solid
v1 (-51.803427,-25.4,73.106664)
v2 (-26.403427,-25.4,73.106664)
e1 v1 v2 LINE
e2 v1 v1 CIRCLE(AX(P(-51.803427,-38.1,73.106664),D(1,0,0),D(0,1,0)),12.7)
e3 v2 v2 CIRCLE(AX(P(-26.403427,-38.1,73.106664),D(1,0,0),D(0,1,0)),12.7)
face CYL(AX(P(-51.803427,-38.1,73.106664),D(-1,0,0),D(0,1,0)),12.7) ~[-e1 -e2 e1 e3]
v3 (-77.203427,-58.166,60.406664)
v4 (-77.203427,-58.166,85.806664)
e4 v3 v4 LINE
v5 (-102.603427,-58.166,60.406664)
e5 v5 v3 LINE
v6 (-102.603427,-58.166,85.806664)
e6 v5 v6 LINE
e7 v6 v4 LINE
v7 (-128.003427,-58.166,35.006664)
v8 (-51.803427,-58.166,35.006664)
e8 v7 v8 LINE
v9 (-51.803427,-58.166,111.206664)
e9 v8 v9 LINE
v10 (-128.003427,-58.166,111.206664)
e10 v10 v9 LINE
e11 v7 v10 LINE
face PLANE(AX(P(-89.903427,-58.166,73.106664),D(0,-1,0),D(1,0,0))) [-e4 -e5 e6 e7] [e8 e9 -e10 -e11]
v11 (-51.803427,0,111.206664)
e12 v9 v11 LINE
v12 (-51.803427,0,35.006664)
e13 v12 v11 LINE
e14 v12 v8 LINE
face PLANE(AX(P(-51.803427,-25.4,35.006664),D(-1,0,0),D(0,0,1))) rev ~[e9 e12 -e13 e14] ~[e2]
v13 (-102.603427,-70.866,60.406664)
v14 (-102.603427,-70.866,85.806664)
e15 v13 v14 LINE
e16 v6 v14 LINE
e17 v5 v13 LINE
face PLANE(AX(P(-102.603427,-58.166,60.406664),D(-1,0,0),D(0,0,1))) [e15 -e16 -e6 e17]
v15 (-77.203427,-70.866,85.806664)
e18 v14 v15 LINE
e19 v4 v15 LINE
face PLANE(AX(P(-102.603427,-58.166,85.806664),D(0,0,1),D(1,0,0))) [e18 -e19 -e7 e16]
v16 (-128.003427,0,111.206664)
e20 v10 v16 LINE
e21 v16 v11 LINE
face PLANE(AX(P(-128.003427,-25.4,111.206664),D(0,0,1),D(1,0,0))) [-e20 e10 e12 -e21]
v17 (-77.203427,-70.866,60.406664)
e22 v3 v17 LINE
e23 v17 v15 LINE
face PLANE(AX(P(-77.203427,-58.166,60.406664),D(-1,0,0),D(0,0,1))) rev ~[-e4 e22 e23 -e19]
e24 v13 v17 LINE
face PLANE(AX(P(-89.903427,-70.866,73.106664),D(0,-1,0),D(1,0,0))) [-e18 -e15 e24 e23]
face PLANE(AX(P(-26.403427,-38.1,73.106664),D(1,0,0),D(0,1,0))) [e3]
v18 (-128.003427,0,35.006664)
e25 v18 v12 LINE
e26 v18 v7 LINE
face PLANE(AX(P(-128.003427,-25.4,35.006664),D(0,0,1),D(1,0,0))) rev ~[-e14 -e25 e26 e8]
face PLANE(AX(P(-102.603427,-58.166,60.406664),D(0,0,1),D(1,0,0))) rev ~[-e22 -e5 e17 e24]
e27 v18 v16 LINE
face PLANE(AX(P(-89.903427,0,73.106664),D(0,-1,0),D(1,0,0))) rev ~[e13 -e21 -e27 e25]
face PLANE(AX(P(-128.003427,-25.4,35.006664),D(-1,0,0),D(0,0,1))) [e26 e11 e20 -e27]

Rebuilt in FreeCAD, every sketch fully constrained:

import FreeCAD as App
import Part
import Sketcher

V = App.Vector
Q = App.Units.Quantity

doc = App.newDocument("Part")
body = doc.addObject("PartDesign::Body", "Body")

sketch1 = body.newObject("Sketcher::SketchObject", "Sketch")
sketch1.AttachmentSupport = (doc.getObject("XZ_Plane"), [""])
sketch1.MapMode = "FlatFace"
sketch1.addGeometry([
    Part.LineSegment(V(-128, 111, 0), V(-128, 35, 0)),
    Part.LineSegment(V(-128, 35, 0), V(-52, 35, 0)),
    Part.LineSegment(V(-52, 35, 0), V(-52, 111, 0)),
    Part.LineSegment(V(-52, 111, 0), V(-128, 111, 0)),
], False)
sketch1.addConstraint([
    Sketcher.Constraint("Coincident", 0, 2, 1, 1),
    Sketcher.Constraint("Coincident", 1, 2, 2, 1),
    Sketcher.Constraint("Coincident", 2, 2, 3, 1),
    Sketcher.Constraint("Coincident", 3, 2, 0, 1),
    Sketcher.Constraint("Vertical", 0),
    Sketcher.Constraint("Horizontal", 1),
    Sketcher.Constraint("Vertical", 2),
    Sketcher.Constraint("Horizontal", 3),
    Sketcher.Constraint("Equal", 3, 0),
    Sketcher.Constraint("DistanceX", 1, 1, 1, 2, Q("3 in")),
    Sketcher.Constraint("DistanceX", 0, 2, -1, 1, 128.003427),
    Sketcher.Constraint("DistanceY", -1, 1, 0, 2, 35.006664),
])
pad1 = body.newObject("PartDesign::Pad", "Pad")
pad1.Profile = sketch1
pad1.Length = Q("1 in")

sketch2 = body.newObject("Sketcher::SketchObject", "Sketch001")
sketch2.AttachmentSupport = (doc.getObject("XZ_Plane"), [""])
sketch2.MapMode = "FlatFace"
sketch2.AttachmentOffset = App.Placement(V(0, 0, 1 * 25.4), App.Rotation())
sketch2.addGeometry([
    Part.LineSegment(V(-128, 111, 0), V(-128, 35, 0)),
    Part.LineSegment(V(-128, 35, 0), V(-52, 35, 0)),
    Part.LineSegment(V(-52, 35, 0), V(-52, 111, 0)),
    Part.LineSegment(V(-52, 111, 0), V(-128, 111, 0)),
], False)
sketch2.addConstraint([
    Sketcher.Constraint("Coincident", 0, 2, 1, 1),
    Sketcher.Constraint("Coincident", 1, 2, 2, 1),
    Sketcher.Constraint("Coincident", 2, 2, 3, 1),
    Sketcher.Constraint("Coincident", 3, 2, 0, 1),
    Sketcher.Constraint("Vertical", 0),
    Sketcher.Constraint("Horizontal", 1),
    Sketcher.Constraint("Vertical", 2),
    Sketcher.Constraint("Horizontal", 3),
    Sketcher.Constraint("Equal", 3, 0),
    Sketcher.Constraint("DistanceX", 1, 1, 1, 2, Q("3 in")),
    Sketcher.Constraint("DistanceX", 0, 2, -1, 1, 128.003427),
    Sketcher.Constraint("DistanceY", -1, 1, 0, 2, 35.006664),
])
pad2 = body.newObject("PartDesign::Pad", "Pad001")
pad2.Profile = sketch2
pad2.Length = Q("1.29 in")

sketch3 = body.newObject("Sketcher::SketchObject", "Sketch002")
sketch3.AttachmentSupport = (doc.getObject("XZ_Plane"), [""])
sketch3.MapMode = "FlatFace"
sketch3.AttachmentOffset = App.Placement(V(0, 0, 2.29 * 25.4), App.Rotation())
sketch3.addGeometry([
    Part.LineSegment(V(-103, 86, 0), V(-103, 60, 0)),
    Part.LineSegment(V(-103, 60, 0), V(-77, 60, 0)),
    Part.LineSegment(V(-77, 60, 0), V(-77, 86, 0)),
    Part.LineSegment(V(-77, 86, 0), V(-103, 86, 0)),
], False)
sketch3.addConstraint([
    Sketcher.Constraint("Coincident", 0, 2, 1, 1),
    Sketcher.Constraint("Coincident", 1, 2, 2, 1),
    Sketcher.Constraint("Coincident", 2, 2, 3, 1),
    Sketcher.Constraint("Coincident", 3, 2, 0, 1),
    Sketcher.Constraint("Vertical", 0),
    Sketcher.Constraint("Horizontal", 1),
    Sketcher.Constraint("Vertical", 2),
    Sketcher.Constraint("Horizontal", 3),
    Sketcher.Constraint("Equal", 3, 0),
    Sketcher.Constraint("DistanceX", 1, 1, 1, 2, Q("1 in")),
    Sketcher.Constraint("DistanceX", 0, 2, -1, 1, 102.603427),
    Sketcher.Constraint("DistanceY", -1, 1, 0, 2, 60.406664),
])
pad3 = body.newObject("PartDesign::Pad", "Pad002")
pad3.Profile = sketch3
pad3.Length = Q("0.5 in")

sketch4 = body.newObject("Sketcher::SketchObject", "Sketch003")
sketch4.AttachmentSupport = (doc.getObject("YZ_Plane"), [""])
sketch4.MapMode = "FlatFace"
sketch4.AttachmentOffset = App.Placement(V(0, 0, -51.803427), App.Rotation())
sketch4.addGeometry(Part.Circle(V(-38, 73, 0), V(0, 0, 1), 13), False)
sketch4.addConstraint([
    Sketcher.Constraint("Diameter", 0, Q("1 in")),
    Sketcher.Constraint("DistanceX", 0, 3, -1, 1, Q("1.5 in")),
    Sketcher.Constraint("DistanceY", -1, 1, 0, 3, 73.106664),
])
pad4 = body.newObject("PartDesign::Pad", "Pad003")
pad4.Profile = sketch4
pad4.Length = Q("1 in")

doc.recompute()
